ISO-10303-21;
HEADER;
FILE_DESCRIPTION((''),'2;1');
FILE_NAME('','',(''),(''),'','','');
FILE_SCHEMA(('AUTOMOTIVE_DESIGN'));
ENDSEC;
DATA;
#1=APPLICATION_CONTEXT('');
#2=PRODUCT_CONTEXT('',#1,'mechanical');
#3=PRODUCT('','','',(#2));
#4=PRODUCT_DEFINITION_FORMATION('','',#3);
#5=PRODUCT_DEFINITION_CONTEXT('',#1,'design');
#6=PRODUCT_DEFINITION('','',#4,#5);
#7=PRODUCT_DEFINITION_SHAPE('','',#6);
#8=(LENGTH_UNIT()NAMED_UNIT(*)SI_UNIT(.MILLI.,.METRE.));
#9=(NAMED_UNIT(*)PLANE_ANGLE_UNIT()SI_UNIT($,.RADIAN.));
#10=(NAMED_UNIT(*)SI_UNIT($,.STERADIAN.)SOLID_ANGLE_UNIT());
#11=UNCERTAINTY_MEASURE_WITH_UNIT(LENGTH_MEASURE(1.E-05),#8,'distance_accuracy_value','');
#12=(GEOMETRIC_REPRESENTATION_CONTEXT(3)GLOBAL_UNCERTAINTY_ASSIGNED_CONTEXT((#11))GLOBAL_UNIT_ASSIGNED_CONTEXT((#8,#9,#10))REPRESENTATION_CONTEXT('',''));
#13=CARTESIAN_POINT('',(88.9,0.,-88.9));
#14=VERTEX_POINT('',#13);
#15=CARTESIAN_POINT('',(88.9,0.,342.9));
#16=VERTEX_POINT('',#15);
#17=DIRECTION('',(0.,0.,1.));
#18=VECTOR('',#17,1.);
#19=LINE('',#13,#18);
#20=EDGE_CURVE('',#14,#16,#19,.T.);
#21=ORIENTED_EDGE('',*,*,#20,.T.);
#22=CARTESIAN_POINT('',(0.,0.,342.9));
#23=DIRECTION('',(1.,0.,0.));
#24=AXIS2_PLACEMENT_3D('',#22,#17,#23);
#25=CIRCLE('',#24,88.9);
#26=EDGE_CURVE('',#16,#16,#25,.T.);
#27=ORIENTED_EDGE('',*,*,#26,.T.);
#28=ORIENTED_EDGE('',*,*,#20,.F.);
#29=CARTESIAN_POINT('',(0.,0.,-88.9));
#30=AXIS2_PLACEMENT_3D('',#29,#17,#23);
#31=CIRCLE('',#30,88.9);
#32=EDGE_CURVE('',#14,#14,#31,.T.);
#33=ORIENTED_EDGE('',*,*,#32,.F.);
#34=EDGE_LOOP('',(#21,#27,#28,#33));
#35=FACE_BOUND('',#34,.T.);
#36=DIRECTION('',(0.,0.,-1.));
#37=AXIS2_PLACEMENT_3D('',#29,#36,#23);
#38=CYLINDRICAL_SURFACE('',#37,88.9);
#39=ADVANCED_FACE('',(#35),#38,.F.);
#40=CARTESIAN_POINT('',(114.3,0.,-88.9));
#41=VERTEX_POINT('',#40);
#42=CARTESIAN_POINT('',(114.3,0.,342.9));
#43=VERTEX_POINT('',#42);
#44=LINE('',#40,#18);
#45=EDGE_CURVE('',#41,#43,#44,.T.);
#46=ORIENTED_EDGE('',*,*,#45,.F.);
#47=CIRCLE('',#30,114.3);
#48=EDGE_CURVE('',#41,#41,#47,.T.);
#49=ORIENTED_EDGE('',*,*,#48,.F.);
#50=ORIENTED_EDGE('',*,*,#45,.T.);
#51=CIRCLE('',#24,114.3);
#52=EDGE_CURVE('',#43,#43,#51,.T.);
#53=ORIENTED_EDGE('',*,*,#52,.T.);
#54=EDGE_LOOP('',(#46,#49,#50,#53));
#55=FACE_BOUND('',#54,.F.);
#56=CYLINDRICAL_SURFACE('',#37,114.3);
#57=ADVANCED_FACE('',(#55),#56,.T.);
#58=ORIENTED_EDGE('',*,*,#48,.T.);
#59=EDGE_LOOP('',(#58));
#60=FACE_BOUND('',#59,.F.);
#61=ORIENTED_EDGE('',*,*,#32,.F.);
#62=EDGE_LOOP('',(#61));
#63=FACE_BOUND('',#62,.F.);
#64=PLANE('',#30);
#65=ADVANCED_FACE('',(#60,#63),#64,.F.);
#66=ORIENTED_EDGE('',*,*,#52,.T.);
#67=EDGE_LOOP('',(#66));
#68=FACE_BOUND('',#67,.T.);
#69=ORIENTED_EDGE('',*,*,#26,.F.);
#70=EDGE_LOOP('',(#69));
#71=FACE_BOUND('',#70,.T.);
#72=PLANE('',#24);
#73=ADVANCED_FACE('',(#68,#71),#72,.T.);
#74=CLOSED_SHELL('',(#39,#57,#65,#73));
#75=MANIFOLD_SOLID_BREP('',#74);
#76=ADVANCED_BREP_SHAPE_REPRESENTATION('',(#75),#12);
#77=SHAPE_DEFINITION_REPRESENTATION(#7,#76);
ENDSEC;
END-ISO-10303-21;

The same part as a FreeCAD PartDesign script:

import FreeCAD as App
import Part
import Sketcher
from FreeCAD import Vector
Q = App.Units.Quantity

doc = App.newDocument("Part")
body = doc.addObject("PartDesign::Body", "Body")

# Sketch on XY plane
sketch1 = body.newObject("Sketcher::SketchObject", "Sketch")
sketch1.AttachmentSupport = (doc.getObject("XY_Plane"), [""])
sketch1.MapMode = "FlatFace"
sketch1.AttachmentOffset = App.Placement(Vector(0, 0, -3.5 * 25.4), App.Rotation())
sketch1.addGeometry([
    Part.Circle(Vector(0, 0, 0), Vector(0, 0, 1), 114),
    Part.Circle(Vector(0, 0, 0), Vector(0, 0, 1), 89),
], False)
sketch1.addConstraint([
    Sketcher.Constraint("Coincident", 0, 3, -1, 1),
    Sketcher.Constraint("Coincident", 1, 3, -1, 1),
    Sketcher.Constraint("Diameter", 0, Q("9 in")),
    Sketcher.Constraint("Diameter", 1, Q("7 in")),
])
pad1 = body.newObject("PartDesign::Pad", "Pad")
pad1.Profile = sketch1
pad1.Length = Q("17 in")

doc.recompute()
